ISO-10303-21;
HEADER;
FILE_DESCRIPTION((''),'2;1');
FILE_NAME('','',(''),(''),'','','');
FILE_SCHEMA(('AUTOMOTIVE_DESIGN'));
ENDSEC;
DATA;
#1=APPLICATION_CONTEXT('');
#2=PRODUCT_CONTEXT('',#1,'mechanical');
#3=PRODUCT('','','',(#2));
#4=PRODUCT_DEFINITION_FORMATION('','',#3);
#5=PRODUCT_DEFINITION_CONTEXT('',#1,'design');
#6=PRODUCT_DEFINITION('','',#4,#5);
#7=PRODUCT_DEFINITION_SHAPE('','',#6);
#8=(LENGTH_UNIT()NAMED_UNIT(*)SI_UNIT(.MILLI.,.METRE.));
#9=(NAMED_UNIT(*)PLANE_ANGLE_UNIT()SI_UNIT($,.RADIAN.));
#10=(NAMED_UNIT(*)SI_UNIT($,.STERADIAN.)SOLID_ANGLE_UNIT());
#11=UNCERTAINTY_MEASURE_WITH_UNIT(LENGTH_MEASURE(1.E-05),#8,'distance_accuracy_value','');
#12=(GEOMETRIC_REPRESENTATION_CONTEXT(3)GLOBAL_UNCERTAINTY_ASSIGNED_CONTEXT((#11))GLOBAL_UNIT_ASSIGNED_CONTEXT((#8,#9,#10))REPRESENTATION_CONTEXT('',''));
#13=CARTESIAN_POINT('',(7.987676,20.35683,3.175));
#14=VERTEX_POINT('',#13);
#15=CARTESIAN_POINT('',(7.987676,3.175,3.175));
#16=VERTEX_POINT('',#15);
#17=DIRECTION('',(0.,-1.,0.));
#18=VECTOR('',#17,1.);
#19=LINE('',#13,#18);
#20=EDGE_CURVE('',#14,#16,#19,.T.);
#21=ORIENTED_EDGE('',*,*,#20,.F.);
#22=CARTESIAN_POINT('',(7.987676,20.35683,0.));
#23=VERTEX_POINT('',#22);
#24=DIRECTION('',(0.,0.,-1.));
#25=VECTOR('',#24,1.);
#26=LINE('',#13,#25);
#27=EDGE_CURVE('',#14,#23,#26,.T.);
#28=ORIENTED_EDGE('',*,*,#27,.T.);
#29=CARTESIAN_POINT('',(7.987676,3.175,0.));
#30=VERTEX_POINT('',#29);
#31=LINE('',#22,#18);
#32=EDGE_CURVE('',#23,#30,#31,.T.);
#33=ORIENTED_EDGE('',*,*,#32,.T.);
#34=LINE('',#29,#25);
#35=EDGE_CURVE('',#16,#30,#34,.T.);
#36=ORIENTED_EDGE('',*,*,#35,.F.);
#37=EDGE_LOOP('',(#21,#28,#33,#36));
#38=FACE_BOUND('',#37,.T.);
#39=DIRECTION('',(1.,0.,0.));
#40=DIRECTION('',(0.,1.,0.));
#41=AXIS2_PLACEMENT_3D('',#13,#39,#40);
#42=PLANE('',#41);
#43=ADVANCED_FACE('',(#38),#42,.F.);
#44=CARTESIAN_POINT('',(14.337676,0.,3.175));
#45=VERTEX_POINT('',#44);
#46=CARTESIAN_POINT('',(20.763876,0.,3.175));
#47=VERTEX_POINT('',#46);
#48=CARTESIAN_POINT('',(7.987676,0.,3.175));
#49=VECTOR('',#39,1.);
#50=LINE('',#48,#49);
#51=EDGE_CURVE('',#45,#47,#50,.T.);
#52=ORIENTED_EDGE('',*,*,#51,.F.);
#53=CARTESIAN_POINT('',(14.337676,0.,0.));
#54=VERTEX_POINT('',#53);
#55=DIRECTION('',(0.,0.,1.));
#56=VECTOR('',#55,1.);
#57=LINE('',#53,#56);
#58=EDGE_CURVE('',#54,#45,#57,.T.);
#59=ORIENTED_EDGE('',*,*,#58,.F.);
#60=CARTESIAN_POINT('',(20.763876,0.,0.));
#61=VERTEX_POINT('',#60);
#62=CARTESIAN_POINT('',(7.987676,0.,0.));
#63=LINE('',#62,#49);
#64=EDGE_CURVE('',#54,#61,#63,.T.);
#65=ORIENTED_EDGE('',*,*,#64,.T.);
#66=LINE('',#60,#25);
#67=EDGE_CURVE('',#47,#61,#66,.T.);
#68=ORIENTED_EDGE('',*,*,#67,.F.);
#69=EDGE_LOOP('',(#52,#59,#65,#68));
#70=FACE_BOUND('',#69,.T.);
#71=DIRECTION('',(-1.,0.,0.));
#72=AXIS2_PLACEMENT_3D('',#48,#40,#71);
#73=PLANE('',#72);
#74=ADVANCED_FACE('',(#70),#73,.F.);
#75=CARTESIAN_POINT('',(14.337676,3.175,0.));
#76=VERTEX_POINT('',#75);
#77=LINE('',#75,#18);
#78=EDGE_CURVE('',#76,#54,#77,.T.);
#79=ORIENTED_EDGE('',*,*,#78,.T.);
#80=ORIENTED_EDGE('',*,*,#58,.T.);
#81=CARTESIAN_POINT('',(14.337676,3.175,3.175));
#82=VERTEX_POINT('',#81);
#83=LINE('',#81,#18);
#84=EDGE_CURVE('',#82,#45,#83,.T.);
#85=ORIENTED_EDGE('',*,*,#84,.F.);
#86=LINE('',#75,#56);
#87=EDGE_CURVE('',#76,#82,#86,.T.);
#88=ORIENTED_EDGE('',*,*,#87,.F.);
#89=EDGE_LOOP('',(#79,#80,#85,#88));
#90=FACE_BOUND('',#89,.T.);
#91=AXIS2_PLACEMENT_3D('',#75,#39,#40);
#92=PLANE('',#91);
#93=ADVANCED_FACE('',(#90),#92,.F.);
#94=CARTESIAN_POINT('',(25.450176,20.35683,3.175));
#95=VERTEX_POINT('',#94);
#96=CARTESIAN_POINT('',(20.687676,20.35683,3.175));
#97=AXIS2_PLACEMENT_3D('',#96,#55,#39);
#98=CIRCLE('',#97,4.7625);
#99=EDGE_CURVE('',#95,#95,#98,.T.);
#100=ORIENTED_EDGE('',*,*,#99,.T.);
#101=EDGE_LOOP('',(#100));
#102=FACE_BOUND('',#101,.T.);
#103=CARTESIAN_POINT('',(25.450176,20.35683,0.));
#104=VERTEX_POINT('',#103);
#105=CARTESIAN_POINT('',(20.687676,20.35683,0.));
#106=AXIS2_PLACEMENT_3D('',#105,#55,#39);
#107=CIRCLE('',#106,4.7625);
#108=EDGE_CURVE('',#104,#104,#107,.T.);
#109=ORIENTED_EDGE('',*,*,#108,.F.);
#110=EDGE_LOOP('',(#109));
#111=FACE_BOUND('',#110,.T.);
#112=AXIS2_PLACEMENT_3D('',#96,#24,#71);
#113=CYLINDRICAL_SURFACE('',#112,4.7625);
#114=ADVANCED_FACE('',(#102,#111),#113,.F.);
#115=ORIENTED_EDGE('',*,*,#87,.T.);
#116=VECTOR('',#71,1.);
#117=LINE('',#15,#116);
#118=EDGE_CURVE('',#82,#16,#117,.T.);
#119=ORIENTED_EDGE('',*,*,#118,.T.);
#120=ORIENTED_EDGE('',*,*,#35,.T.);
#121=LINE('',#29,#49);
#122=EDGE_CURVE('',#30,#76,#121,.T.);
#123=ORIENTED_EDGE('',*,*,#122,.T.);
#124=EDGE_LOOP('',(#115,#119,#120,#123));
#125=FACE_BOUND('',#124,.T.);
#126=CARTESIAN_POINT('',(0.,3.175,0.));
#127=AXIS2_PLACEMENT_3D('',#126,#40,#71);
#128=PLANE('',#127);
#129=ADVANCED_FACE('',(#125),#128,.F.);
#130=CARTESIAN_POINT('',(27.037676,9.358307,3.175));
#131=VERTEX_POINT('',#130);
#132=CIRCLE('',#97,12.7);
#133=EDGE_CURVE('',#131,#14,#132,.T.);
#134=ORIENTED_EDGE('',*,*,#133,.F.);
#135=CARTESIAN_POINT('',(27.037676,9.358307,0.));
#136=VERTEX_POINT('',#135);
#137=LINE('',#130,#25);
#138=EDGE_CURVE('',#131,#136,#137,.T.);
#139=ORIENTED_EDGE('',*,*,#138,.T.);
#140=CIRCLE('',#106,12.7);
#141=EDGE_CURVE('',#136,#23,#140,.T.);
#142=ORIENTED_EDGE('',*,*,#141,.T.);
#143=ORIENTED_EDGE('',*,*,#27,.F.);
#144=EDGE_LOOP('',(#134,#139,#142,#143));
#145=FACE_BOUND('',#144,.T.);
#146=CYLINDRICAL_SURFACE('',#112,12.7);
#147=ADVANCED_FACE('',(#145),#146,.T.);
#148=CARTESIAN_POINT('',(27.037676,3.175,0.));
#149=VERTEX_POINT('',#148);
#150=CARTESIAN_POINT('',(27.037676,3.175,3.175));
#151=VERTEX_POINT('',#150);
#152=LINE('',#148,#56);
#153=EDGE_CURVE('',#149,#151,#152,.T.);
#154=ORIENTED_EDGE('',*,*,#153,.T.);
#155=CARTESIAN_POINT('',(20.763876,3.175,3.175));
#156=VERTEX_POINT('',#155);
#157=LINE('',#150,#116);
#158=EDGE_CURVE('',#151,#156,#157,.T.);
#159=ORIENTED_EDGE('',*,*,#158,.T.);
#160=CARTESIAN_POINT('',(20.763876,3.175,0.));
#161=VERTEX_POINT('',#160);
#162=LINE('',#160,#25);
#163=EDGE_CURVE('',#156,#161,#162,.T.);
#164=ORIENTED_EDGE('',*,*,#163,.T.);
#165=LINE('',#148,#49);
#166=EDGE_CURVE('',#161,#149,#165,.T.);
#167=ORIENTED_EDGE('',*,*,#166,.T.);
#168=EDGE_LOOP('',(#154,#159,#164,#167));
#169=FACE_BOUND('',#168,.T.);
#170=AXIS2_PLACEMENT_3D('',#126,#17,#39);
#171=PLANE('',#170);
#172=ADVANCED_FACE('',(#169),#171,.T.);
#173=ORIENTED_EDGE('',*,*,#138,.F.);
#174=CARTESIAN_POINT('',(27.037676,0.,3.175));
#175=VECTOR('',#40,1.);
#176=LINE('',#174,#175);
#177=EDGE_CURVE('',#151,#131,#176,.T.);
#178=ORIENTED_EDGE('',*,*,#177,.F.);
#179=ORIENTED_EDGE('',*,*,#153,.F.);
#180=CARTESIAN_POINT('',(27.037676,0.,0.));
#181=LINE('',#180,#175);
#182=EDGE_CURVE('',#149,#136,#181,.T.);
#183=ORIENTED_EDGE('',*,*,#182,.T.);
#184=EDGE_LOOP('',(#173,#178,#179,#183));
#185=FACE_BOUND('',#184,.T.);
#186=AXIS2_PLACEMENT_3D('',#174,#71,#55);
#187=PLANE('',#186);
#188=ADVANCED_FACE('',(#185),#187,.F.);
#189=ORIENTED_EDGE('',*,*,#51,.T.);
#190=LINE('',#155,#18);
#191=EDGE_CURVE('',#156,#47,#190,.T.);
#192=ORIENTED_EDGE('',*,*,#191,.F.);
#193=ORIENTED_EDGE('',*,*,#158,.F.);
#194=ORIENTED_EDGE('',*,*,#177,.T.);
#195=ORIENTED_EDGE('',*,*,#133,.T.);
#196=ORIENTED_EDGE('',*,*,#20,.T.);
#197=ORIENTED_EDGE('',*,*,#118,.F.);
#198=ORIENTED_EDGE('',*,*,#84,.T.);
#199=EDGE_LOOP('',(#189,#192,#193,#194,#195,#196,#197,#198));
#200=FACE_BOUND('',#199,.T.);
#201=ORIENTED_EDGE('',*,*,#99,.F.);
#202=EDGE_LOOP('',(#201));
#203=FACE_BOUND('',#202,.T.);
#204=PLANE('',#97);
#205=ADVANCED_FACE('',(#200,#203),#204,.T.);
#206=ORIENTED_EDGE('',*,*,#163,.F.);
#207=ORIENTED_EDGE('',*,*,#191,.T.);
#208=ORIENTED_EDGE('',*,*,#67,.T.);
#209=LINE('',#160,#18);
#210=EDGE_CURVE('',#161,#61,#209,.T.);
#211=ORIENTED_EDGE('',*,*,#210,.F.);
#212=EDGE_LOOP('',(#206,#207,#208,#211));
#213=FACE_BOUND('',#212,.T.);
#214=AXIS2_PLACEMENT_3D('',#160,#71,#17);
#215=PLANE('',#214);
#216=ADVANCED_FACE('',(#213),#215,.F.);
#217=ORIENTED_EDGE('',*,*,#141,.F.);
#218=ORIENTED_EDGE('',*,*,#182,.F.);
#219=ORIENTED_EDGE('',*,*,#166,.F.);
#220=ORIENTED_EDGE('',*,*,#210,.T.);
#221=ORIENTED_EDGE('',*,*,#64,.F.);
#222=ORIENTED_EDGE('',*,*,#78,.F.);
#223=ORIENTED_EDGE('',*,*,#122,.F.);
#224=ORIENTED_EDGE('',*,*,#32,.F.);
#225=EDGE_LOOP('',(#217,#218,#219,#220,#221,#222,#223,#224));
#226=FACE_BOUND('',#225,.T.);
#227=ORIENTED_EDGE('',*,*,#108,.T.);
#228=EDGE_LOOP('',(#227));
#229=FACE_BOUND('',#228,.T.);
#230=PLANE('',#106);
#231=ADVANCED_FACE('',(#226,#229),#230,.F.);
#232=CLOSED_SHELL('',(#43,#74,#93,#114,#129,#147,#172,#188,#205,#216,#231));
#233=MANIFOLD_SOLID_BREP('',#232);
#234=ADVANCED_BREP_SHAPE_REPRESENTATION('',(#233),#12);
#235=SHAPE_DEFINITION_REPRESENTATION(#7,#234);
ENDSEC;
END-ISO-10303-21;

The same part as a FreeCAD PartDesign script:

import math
import FreeCAD as App
import Part
import Sketcher
from FreeCAD import Vector
Q = App.Units.Quantity


def add_polygon(sketch, points):
    """Adds a closed chain of lines whose ends are joined by coincident constraints."""
    first, n = sketch.GeometryCount, len(points)
    for a, b in zip(points, points[1:] + points[:1]):
        sketch.addGeometry(Part.LineSegment(App.Vector(*a, 0), App.Vector(*b, 0)), False)
    for i in range(n):
        sketch.addConstraint(Sketcher.Constraint("Coincident", first + i, 2, first + (i + 1) % n, 1))

doc = App.newDocument("Part")
body = doc.addObject("PartDesign::Body", "Body")

# Sketch on XY plane
sketch1 = body.newObject("Sketcher::SketchObject", "Sketch")
sketch1.AttachmentSupport = (doc.getObject("XY_Plane"), [""])
sketch1.MapMode = "FlatFace"
sketch1.addGeometry([
    Part.LineSegment(Vector(7.987676, 20.35683, 0), Vector(7.987676, 0, 0)),  # 0
    Part.LineSegment(Vector(7.987676, 0, 0), Vector(27.037676, 0, 0)),  # 1
    Part.LineSegment(Vector(27.037676, 0, 0), Vector(27.037676, 9.358307, 0)),  # 2
    Part.ArcOfCircle(Part.Circle(Vector(20.687676, 20.35683, 0), Vector(0, 0, 1), 12.7), math.radians(-60), math.radians(180)),  # 3
    Part.Circle(Vector(20.687676, 20.35683, 0), Vector(0, 0, 1), 4.7625),  # 4
], False)
sketch1.addConstraint([
    Sketcher.Constraint("Coincident", 0, 2, 1, 1),
    Sketcher.Constraint("Coincident", 1, 2, 2, 1),
    Sketcher.Constraint("Coincident", 2, 2, 3, 1),
    Sketcher.Constraint("Tangent", 3, 2, 0, 1),
    Sketcher.Constraint("Vertical", 0),
    Sketcher.Constraint("Horizontal", 1),
    Sketcher.Constraint("Vertical", 2),
    Sketcher.Constraint("Coincident", 4, 3, 3, 3),
    Sketcher.Constraint("PointOnObject", 0, 2, -1),
    Sketcher.Constraint("Radius", 3, Q("0.5 in")),
    Sketcher.Constraint("Diameter", 4, Q("0.375 in")),
    Sketcher.Constraint("DistanceX", 1, 1, 1, 2, Q("0.75 in")),
    Sketcher.Constraint("DistanceY", 0, 2, 0, 1, 20.35683),
    Sketcher.Constraint("DistanceX", -1, 1, 3, 3, 20.687676),
])
pad1 = body.newObject("PartDesign::Pad", "Pad")
pad1.Profile = sketch1
pad1.Length = Q("0.125 in")

# Sketch on XZ plane
sketch2 = body.newObject("Sketcher::SketchObject", "Sketch001")
sketch2.AttachmentSupport = (doc.getObject("XZ_Plane"), [""])
sketch2.MapMode = "FlatFace"
add_polygon(sketch2, [(7.987676, 3.175), (7.987676, 0), (14.337676, 0), (14.337676, 3.175)])  # lines 0-3
add_polygon(sketch2, [(20.763876, 3.175), (20.763876, 0), (27.037676, 0), (27.037676, 3.175)])  # lines 4-7
sketch2.addConstraint([
    Sketcher.Constraint("Vertical", 0),
    Sketcher.Constraint("Horizontal", 1),
    Sketcher.Constraint("Vertical", 2),
    Sketcher.Constraint("Horizontal", 3),
    Sketcher.Constraint("Vertical", 4),
    Sketcher.Constraint("Horizontal", 5),
    Sketcher.Constraint("Vertical", 6),
    Sketcher.Constraint("Horizontal", 7),
    Sketcher.Constraint("PointOnObject", 0, 2, -1),
    Sketcher.Constraint("PointOnObject", 4, 2, -1),
    Sketcher.Constraint("Horizontal", 3, 2, 6, 2),
    Sketcher.Constraint("DistanceX", 1, 1, 1, 2, Q("0.25 in")),
    Sketcher.Constraint("DistanceX", 1, 2, 5, 2, Q("0.5 in")),
    Sketcher.Constraint("DistanceX", 5, 1, 5, 2, Q("0.247 in")),
    Sketcher.Constraint("DistanceY", 0, 2, 0, 1, Q("0.125 in")),
    Sketcher.Constraint("DistanceX", -1, 1, 0, 2, 7.987676),
])
pocket1 = body.newObject("PartDesign::Pocket", "Pocket")
pocket1.Profile = sketch2
pocket1.Length = Q("0.125 in")

doc.recompute()
